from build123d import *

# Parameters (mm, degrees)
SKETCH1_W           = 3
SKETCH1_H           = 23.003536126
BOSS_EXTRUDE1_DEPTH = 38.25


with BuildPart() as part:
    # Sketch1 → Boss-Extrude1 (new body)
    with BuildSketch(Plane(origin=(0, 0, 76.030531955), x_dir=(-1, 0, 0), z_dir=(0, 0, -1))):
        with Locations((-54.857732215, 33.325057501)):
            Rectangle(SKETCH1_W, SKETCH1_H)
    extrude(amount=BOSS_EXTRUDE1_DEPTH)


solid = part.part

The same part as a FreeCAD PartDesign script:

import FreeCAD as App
import Part
import Sketcher
from FreeCAD import Vector

doc = App.newDocument("Part")
body = doc.addObject("PartDesign::Body", "Body")

# Sketch on XY plane
sketch1 = doc.addObject("Sketcher::SketchObject", "Sketch")
body.addObject(sketch1)
sketch1.AttachmentSupport = (doc.XY_Plane, [""])
sketch1.MapMode = "FlatFace"
sketch1.AttachmentOffset = App.Placement(Vector(0, 0, 76.030532), App.Rotation())
sketch1.addGeometry(Part.LineSegment(Vector(56.357732, 44.826826, 0), Vector(56.357732, 21.823289, 0)), False)
sketch1.addGeometry(Part.LineSegment(Vector(56.357732, 21.823289, 0), Vector(53.357732, 21.823289, 0)), False)
sketch1.addGeometry(Part.LineSegment(Vector(53.357732, 21.823289, 0), Vector(53.357732, 44.826826, 0)), False)
sketch1.addGeometry(Part.LineSegment(Vector(53.357732, 44.826826, 0), Vector(56.357732, 44.826826, 0)), False)
sketch1.addConstraint(Sketcher.Constraint("Coincident", 0, 2, 1, 1))
sketch1.addConstraint(Sketcher.Constraint("Coincident", 1, 2, 2, 1))
sketch1.addConstraint(Sketcher.Constraint("Coincident", 2, 2, 3, 1))
sketch1.addConstraint(Sketcher.Constraint("Coincident", 3, 2, 0, 1))
sketch1.addConstraint(Sketcher.Constraint("Vertical", 0))
sketch1.addConstraint(Sketcher.Constraint("Horizontal", 1))
sketch1.addConstraint(Sketcher.Constraint("Vertical", 2))
sketch1.addConstraint(Sketcher.Constraint("Horizontal", 3))
sketch1.addConstraint(Sketcher.Constraint("DistanceX", 1, 2, 1, 1, 3.0))
sketch1.addConstraint(Sketcher.Constraint("DistanceY", 0, 2, 0, 1, 23.003536))
sketch1.addConstraint(Sketcher.Constraint("DistanceY", -1, 1, 0, 2, 21.823289))
sketch1.addConstraint(Sketcher.Constraint("DistanceX", -1, 1, 0, 2, 56.357732))
pad1 = doc.addObject("PartDesign::Pad", "Pad")
body.addObject(pad1)
pad1.Profile = sketch1
pad1.Length = 38.25
pad1.Reversed = True

doc.recompute()
